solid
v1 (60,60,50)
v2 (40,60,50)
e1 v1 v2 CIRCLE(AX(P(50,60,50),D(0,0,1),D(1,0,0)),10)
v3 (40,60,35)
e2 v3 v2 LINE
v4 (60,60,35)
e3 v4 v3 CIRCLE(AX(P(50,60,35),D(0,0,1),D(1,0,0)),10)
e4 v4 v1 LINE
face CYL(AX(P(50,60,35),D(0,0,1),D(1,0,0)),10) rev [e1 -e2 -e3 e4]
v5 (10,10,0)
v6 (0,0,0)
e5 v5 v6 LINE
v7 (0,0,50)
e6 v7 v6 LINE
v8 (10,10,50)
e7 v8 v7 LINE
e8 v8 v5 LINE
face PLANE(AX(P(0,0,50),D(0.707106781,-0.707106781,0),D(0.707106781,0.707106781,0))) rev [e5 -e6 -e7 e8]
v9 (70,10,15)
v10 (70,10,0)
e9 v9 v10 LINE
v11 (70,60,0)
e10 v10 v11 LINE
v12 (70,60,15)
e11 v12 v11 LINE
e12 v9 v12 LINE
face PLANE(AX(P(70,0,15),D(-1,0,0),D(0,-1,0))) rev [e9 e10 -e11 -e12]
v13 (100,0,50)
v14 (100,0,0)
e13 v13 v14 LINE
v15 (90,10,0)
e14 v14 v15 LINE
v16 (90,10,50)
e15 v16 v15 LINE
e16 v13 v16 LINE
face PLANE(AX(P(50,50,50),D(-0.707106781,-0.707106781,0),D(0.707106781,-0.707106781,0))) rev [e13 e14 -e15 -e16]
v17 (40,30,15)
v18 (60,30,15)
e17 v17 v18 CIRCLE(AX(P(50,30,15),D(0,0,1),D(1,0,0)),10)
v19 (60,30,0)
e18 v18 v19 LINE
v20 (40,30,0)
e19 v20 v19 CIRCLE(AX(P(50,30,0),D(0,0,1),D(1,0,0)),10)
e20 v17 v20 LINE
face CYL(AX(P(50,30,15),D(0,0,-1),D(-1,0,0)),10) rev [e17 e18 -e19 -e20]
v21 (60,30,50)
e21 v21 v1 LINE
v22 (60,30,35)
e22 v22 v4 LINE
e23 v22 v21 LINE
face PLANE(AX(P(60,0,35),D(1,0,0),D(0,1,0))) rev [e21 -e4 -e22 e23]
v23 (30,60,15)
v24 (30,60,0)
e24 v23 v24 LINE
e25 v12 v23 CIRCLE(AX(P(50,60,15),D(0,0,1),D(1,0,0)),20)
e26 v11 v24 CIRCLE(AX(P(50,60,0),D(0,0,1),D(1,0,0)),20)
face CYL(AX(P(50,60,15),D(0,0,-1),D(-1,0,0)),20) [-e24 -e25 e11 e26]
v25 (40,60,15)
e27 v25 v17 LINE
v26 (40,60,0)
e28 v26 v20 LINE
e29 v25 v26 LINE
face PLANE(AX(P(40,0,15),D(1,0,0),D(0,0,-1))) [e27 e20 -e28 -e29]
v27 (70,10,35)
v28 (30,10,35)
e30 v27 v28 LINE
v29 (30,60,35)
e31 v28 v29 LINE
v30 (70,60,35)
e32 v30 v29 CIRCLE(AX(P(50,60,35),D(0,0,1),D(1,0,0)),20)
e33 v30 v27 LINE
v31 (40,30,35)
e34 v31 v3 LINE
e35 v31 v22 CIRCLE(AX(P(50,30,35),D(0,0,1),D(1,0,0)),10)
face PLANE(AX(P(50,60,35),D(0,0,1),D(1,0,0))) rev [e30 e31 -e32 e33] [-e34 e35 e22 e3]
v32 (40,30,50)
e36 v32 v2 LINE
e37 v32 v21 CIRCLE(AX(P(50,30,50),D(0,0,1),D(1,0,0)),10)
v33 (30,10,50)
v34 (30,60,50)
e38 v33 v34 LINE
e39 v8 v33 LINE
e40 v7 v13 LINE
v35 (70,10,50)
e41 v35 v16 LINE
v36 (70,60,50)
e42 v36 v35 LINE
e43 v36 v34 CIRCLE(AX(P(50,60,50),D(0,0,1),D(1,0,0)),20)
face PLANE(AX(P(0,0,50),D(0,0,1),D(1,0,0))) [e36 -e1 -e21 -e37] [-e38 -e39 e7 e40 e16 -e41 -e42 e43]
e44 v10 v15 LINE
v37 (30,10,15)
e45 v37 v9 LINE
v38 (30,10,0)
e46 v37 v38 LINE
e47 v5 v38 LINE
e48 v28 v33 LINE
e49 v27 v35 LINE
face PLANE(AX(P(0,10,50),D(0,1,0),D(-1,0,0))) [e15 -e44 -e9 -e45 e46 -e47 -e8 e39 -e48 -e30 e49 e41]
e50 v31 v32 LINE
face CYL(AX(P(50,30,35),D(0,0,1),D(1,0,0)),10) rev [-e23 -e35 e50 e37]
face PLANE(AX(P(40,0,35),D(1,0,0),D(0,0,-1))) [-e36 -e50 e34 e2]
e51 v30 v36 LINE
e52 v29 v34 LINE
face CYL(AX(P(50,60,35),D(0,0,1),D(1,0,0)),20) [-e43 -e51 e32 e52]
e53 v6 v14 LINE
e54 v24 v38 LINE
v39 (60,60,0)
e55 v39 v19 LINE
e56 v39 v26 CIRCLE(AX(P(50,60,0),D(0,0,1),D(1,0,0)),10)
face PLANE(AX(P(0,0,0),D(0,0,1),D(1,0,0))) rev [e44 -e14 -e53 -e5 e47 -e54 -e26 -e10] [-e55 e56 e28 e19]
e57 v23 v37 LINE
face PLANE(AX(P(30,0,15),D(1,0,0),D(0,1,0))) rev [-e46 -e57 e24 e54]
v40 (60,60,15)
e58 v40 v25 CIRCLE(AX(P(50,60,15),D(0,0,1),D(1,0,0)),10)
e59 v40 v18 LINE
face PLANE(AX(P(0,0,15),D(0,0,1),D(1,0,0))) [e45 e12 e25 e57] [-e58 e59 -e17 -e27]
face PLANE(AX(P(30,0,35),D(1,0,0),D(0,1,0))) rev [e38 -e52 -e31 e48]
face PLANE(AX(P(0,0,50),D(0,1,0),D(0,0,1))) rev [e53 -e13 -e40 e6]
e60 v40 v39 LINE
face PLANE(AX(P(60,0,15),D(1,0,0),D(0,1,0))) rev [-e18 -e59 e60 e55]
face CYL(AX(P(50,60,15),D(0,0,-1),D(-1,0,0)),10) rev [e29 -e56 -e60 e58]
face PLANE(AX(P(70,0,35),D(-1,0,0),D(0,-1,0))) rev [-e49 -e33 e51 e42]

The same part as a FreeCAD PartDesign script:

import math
import FreeCAD as App
import Part
import Sketcher
from FreeCAD import Vector


def add_polygon(sketch, points):
    """Adds a closed chain of lines whose ends are joined by coincident constraints."""
    first, n = sketch.GeometryCount, len(points)
    for a, b in zip(points, points[1:] + points[:1]):
        sketch.addGeometry(Part.LineSegment(App.Vector(*a, 0), App.Vector(*b, 0)), False)
    for i in range(n):
        sketch.addConstraint(Sketcher.Constraint("Coincident", first + i, 2, first + (i + 1) % n, 1))

doc = App.newDocument("Part")
body = doc.addObject("PartDesign::Body", "Body")

sketch1 = body.newObject("Sketcher::SketchObject", "Sketch")
sketch1.AttachmentSupport = (doc.getObject("XY_Plane"), [""])
sketch1.MapMode = "FlatFace"
add_polygon(sketch1, [(90, 10), (10, 10), (0, 0), (100, 0)])
sketch1.addConstraint(Sketcher.Constraint("Horizontal", 0))
sketch1.addConstraint(Sketcher.Constraint("Horizontal", 2))
sketch1.addConstraint(Sketcher.Constraint("Coincident", 1, 2, -1, 1))
sketch1.addConstraint(Sketcher.Constraint("Perpendicular", 1, 3))
sketch1.addConstraint(Sketcher.Constraint("Equal", 1, 3))
sketch1.addConstraint(Sketcher.Constraint("DistanceX", 0, 2, 0, 1, 80.0))
sketch1.addConstraint(Sketcher.Constraint("DistanceX", 2, 1, 2, 2, 100.0))
pad1 = body.newObject("PartDesign::Pad", "Pad")
pad1.Profile = sketch1
pad1.Length = 50

sketch2 = body.newObject("Sketcher::SketchObject", "Sketch001")
sketch2.AttachmentSupport = (doc.getObject("XY_Plane"), [""])
sketch2.MapMode = "FlatFace"
sketch2.addGeometry(Part.LineSegment(Vector(70, 10, 0), Vector(70, 60, 0)), False)
sketch2.addGeometry(Part.ArcOfCircle(Part.Circle(Vector(50, 60, 0), Vector(0, 0, 1), 20), math.radians(0), math.radians(180)), False)
sketch2.addGeometry(Part.LineSegment(Vector(30, 60, 0), Vector(30, 10, 0)), False)
sketch2.addGeometry(Part.LineSegment(Vector(30, 10, 0), Vector(70, 10, 0)), False)
sketch2.addGeometry(Part.ArcOfCircle(Part.Circle(Vector(50, 30, 0), Vector(0, 0, 1), 10), math.radians(180), math.radians(360)), False)
sketch2.addGeometry(Part.LineSegment(Vector(40, 30, 0), Vector(40, 60, 0)), False)
sketch2.addGeometry(Part.ArcOfCircle(Part.Circle(Vector(50, 60, 0), Vector(0, 0, 1), 10), math.radians(0), math.radians(180)), False)
sketch2.addGeometry(Part.LineSegment(Vector(60, 60, 0), Vector(60, 30, 0)), False)
sketch2.addConstraint(Sketcher.Constraint("Tangent", 0, 2, 1, 1))
sketch2.addConstraint(Sketcher.Constraint("Tangent", 1, 2, 2, 1))
sketch2.addConstraint(Sketcher.Constraint("Coincident", 2, 2, 3, 1))
sketch2.addConstraint(Sketcher.Constraint("Coincident", 3, 2, 0, 1))
sketch2.addConstraint(Sketcher.Constraint("Tangent", 4, 1, 5, 1))
sketch2.addConstraint(Sketcher.Constraint("Tangent", 5, 2, 6, 2))
sketch2.addConstraint(Sketcher.Constraint("Tangent", 6, 1, 7, 1))
sketch2.addConstraint(Sketcher.Constraint("Tangent", 7, 2, 4, 2))
sketch2.addConstraint(Sketcher.Constraint("Vertical", 0))
sketch2.addConstraint(Sketcher.Constraint("Vertical", 2))
sketch2.addConstraint(Sketcher.Constraint("Horizontal", 3))
sketch2.addConstraint(Sketcher.Constraint("Vertical", 5))
sketch2.addConstraint(Sketcher.Constraint("Vertical", 7))
sketch2.addConstraint(Sketcher.Constraint("Coincident", 6, 3, 1, 3))
sketch2.addConstraint(Sketcher.Constraint("Radius", 1, 20.0))
sketch2.addConstraint(Sketcher.Constraint("Radius", 4, 10.0))
sketch2.addConstraint(Sketcher.Constraint("DistanceY", 0, 1, 0, 2, 50.0))
sketch2.addConstraint(Sketcher.Constraint("DistanceY", 5, 1, 5, 2, 30.0))
sketch2.addConstraint(Sketcher.Constraint("DistanceX", -1, 1, 1, 3, 50.0))
sketch2.addConstraint(Sketcher.Constraint("DistanceY", -1, 1, 1, 3, 60.0))
pad2 = body.newObject("PartDesign::Pad", "Pad001")
pad2.Profile = sketch2
pad2.Length = 15

sketch3 = body.newObject("Sketcher::SketchObject", "Sketch002")
sketch3.AttachmentSupport = (doc.getObject("XY_Plane"), [""])
sketch3.MapMode = "FlatFace"
sketch3.AttachmentOffset = App.Placement(Vector(0, 0, 35), App.Rotation())
sketch3.addGeometry(Part.LineSegment(Vector(70, 10, 0), Vector(70, 60, 0)), False)
sketch3.addGeometry(Part.ArcOfCircle(Part.Circle(Vector(50, 60, 0), Vector(0, 0, 1), 20), math.radians(0), math.radians(180)), False)
sketch3.addGeometry(Part.LineSegment(Vector(30, 60, 0), Vector(30, 10, 0)), False)
sketch3.addGeometry(Part.LineSegment(Vector(30, 10, 0), Vector(70, 10, 0)), False)
sketch3.addGeometry(Part.ArcOfCircle(Part.Circle(Vector(50, 30, 0), Vector(0, 0, 1), 10), math.radians(180), math.radians(360)), False)
sketch3.addGeometry(Part.LineSegment(Vector(40, 30, 0), Vector(40, 60, 0)), False)
sketch3.addGeometry(Part.ArcOfCircle(Part.Circle(Vector(50, 60, 0), Vector(0, 0, 1), 10), math.radians(0), math.radians(180)), False)
sketch3.addGeometry(Part.LineSegment(Vector(60, 60, 0), Vector(60, 30, 0)), False)
sketch3.addConstraint(Sketcher.Constraint("Tangent", 0, 2, 1, 1))
sketch3.addConstraint(Sketcher.Constraint("Tangent", 1, 2, 2, 1))
sketch3.addConstraint(Sketcher.Constraint("Coincident", 2, 2, 3, 1))
sketch3.addConstraint(Sketcher.Constraint("Coincident", 3, 2, 0, 1))
sketch3.addConstraint(Sketcher.Constraint("Tangent", 4, 1, 5, 1))
sketch3.addConstraint(Sketcher.Constraint("Tangent", 5, 2, 6, 2))
sketch3.addConstraint(Sketcher.Constraint("Tangent", 6, 1, 7, 1))
sketch3.addConstraint(Sketcher.Constraint("Tangent", 7, 2, 4, 2))
sketch3.addConstraint(Sketcher.Constraint("Vertical", 0))
sketch3.addConstraint(Sketcher.Constraint("Vertical", 2))
sketch3.addConstraint(Sketcher.Constraint("Horizontal", 3))
sketch3.addConstraint(Sketcher.Constraint("Vertical", 5))
sketch3.addConstraint(Sketcher.Constraint("Vertical", 7))
sketch3.addConstraint(Sketcher.Constraint("Coincident", 6, 3, 1, 3))
sketch3.addConstraint(Sketcher.Constraint("Radius", 1, 20.0))
sketch3.addConstraint(Sketcher.Constraint("Radius", 4, 10.0))
sketch3.addConstraint(Sketcher.Constraint("DistanceY", 0, 1, 0, 2, 50.0))
sketch3.addConstraint(Sketcher.Constraint("DistanceY", 5, 1, 5, 2, 30.0))
sketch3.addConstraint(Sketcher.Constraint("DistanceX", -1, 1, 1, 3, 50.0))
sketch3.addConstraint(Sketcher.Constraint("DistanceY", -1, 1, 1, 3, 60.0))
pad3 = body.newObject("PartDesign::Pad", "Pad002")
pad3.Profile = sketch3
pad3.Length = 15

doc.recompute()
